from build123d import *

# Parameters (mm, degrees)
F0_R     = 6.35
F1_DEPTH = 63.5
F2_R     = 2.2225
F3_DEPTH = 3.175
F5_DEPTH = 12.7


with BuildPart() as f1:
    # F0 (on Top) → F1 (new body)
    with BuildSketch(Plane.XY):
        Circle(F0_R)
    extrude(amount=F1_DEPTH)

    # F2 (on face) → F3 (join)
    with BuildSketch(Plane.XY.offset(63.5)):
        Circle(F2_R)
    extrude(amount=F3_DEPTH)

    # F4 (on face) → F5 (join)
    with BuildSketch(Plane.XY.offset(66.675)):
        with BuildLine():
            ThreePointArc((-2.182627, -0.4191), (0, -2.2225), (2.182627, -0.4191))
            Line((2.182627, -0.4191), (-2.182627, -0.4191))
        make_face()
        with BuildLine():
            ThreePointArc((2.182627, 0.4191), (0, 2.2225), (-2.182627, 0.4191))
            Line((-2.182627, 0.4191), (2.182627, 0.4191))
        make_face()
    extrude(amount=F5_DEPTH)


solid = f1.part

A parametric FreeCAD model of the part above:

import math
import FreeCAD as App
import Part
import Sketcher

V = App.Vector
Q = App.Units.Quantity

doc = App.newDocument("Part")
params = doc.addObject("Spreadsheet::Sheet", "Params")
for row, (alias, value) in enumerate([
    ("sketch1_diameter", "0.5 in"),
    ("pad1_length", "2.5 in"),
    ("sketch2_diameter", "0.175 in"),
    ("pad2_length", "0.125 in"),
    ("pad3_length", "0.5 in"),
], start=1):
    params.set(f"A{row}", alias)
    params.set(f"B{row}", "=" + value)
    params.setAlias(f"B{row}", alias)

body = doc.addObject("PartDesign::Body", "Body")

# Sketch on XY plane
sketch1 = body.newObject("Sketcher::SketchObject", "Sketch")
sketch1.AttachmentSupport = (doc.getObject("XY_Plane"), [""])
sketch1.MapMode = "FlatFace"
sketch1.addGeometry(Part.Circle(V(0, 0, 0), V(0, 0, 1), 6), False)
sketch1.addConstraint([
    Sketcher.Constraint("Coincident", 0, 3, -1, 1),
    Sketcher.Constraint("Diameter", 0, Q("0.5 in")),
])
sketch1.setExpression("Constraints[1]", "Params.sketch1_diameter")
pad1 = body.newObject("PartDesign::Pad", "Pad")
pad1.Profile = sketch1
pad1.setExpression("Length", "Params.pad1_length")

# Sketch on XY plane
sketch2 = body.newObject("Sketcher::SketchObject", "Sketch001")
sketch2.AttachmentSupport = (doc.getObject("XY_Plane"), [""])
sketch2.MapMode = "FlatFace"
sketch2.AttachmentOffset = App.Placement(V(0, 0, 2.5 * 25.4), App.Rotation())
sketch2.addGeometry(Part.Circle(V(0, 0, 0), V(0, 0, 1), 2.2), False)
sketch2.addConstraint([
    Sketcher.Constraint("Coincident", 0, 3, -1, 1),
    Sketcher.Constraint("Diameter", 0, Q("0.175 in")),
])
sketch2.setExpression("Constraints[1]", "Params.sketch2_diameter")
pad2 = body.newObject("PartDesign::Pad", "Pad001")
pad2.Profile = sketch2
pad2.setExpression("Length", "Params.pad2_length")

# Sketch on XY plane
sketch3 = body.newObject("Sketcher::SketchObject", "Sketch002")
sketch3.AttachmentSupport = (doc.getObject("XY_Plane"), [""])
sketch3.MapMode = "FlatFace"
sketch3.AttachmentOffset = App.Placement(V(0, 0, 2.625 * 25.4), App.Rotation())
sketch3.addGeometry([
    Part.ArcOfCircle(Part.Circle(V(0, 0, 0), V(0, 0, 1), 2.2), math.radians(-169), math.radians(-11)),
    Part.LineSegment(V(2.2, -0.4, 0), V(-2.2, -0.4, 0)),
    Part.ArcOfCircle(Part.Circle(V(0, 0, 0), V(0, 0, 1), 2.2), math.radians(11), math.radians(169)),
    Part.LineSegment(V(-2.2, 0.4, 0), V(2.2, 0.4, 0)),
], False)
sketch3.addConstraint([
    Sketcher.Constraint("Coincident", 0, 1, 1, 2),
    Sketcher.Constraint("Coincident", 1, 1, 0, 2),
    Sketcher.Constraint("Coincident", 2, 1, 3, 2),
    Sketcher.Constraint("Coincident", 3, 1, 2, 2),
    Sketcher.Constraint("Horizontal", 1),
    Sketcher.Constraint("Horizontal", 3),
    Sketcher.Constraint("Coincident", 0, 3, -1, 1),
    Sketcher.Constraint("Coincident", 2, 3, -1, 1),
    Sketcher.Constraint("Equal", 0, 2),
    Sketcher.Constraint("Vertical", 1, 1, 2, 1),
    Sketcher.Constraint("Radius", 0, Q("0.0875 in")),
    Sketcher.Constraint("DistanceY", 1, 1, 2, 1, Q("0.033 in")),
])
pad3 = body.newObject("PartDesign::Pad", "Pad002")
pad3.Profile = sketch3
pad3.setExpression("Length", "Params.pad3_length")

doc.recompute()
